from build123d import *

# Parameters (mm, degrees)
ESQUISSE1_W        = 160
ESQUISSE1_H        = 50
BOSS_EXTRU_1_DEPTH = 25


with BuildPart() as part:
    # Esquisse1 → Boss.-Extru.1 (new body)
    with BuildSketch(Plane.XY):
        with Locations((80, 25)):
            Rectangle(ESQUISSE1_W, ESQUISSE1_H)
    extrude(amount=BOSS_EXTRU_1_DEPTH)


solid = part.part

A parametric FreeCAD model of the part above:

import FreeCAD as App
import Part
import Sketcher
from FreeCAD import Vector
Q = App.Units.Quantity


def add_polygon(sketch, points):
    """Adds a closed chain of lines whose ends are joined by coincident constraints."""
    first, n = sketch.GeometryCount, len(points)
    for a, b in zip(points, points[1:] + points[:1]):
        sketch.addGeometry(Part.LineSegment(App.Vector(*a, 0), App.Vector(*b, 0)), False)
    for i in range(n):
        sketch.addConstraint(Sketcher.Constraint("Coincident", first + i, 2, first + (i + 1) % n, 1))

doc = App.newDocument("Part")
body = doc.addObject("PartDesign::Body", "Body")

# Sketch on XY plane
sketch1 = body.newObject("Sketcher::SketchObject", "Sketch")
sketch1.AttachmentSupport = (doc.getObject("XY_Plane"), [""])
sketch1.MapMode = "FlatFace"
add_polygon(sketch1, [(0, 50), (0, 0), (160, 0), (160, 50)])  # lines 0-3
sketch1.addConstraint(Sketcher.Constraint("Vertical", 0))
sketch1.addConstraint(Sketcher.Constraint("Horizontal", 1))
sketch1.addConstraint(Sketcher.Constraint("Vertical", 2))
sketch1.addConstraint(Sketcher.Constraint("Horizontal", 3))
sketch1.addConstraint(Sketcher.Constraint("Coincident", 0, 2, -1, 1))
sketch1.addConstraint(Sketcher.Constraint("DistanceX", 1, 1, 1, 2, Q("160 mm")))
sketch1.addConstraint(Sketcher.Constraint("DistanceY", 0, 2, 0, 1, Q("50 mm")))
pad1 = body.newObject("PartDesign::Pad", "Pad")
pad1.Profile = sketch1
pad1.Length = 25

doc.recompute()
